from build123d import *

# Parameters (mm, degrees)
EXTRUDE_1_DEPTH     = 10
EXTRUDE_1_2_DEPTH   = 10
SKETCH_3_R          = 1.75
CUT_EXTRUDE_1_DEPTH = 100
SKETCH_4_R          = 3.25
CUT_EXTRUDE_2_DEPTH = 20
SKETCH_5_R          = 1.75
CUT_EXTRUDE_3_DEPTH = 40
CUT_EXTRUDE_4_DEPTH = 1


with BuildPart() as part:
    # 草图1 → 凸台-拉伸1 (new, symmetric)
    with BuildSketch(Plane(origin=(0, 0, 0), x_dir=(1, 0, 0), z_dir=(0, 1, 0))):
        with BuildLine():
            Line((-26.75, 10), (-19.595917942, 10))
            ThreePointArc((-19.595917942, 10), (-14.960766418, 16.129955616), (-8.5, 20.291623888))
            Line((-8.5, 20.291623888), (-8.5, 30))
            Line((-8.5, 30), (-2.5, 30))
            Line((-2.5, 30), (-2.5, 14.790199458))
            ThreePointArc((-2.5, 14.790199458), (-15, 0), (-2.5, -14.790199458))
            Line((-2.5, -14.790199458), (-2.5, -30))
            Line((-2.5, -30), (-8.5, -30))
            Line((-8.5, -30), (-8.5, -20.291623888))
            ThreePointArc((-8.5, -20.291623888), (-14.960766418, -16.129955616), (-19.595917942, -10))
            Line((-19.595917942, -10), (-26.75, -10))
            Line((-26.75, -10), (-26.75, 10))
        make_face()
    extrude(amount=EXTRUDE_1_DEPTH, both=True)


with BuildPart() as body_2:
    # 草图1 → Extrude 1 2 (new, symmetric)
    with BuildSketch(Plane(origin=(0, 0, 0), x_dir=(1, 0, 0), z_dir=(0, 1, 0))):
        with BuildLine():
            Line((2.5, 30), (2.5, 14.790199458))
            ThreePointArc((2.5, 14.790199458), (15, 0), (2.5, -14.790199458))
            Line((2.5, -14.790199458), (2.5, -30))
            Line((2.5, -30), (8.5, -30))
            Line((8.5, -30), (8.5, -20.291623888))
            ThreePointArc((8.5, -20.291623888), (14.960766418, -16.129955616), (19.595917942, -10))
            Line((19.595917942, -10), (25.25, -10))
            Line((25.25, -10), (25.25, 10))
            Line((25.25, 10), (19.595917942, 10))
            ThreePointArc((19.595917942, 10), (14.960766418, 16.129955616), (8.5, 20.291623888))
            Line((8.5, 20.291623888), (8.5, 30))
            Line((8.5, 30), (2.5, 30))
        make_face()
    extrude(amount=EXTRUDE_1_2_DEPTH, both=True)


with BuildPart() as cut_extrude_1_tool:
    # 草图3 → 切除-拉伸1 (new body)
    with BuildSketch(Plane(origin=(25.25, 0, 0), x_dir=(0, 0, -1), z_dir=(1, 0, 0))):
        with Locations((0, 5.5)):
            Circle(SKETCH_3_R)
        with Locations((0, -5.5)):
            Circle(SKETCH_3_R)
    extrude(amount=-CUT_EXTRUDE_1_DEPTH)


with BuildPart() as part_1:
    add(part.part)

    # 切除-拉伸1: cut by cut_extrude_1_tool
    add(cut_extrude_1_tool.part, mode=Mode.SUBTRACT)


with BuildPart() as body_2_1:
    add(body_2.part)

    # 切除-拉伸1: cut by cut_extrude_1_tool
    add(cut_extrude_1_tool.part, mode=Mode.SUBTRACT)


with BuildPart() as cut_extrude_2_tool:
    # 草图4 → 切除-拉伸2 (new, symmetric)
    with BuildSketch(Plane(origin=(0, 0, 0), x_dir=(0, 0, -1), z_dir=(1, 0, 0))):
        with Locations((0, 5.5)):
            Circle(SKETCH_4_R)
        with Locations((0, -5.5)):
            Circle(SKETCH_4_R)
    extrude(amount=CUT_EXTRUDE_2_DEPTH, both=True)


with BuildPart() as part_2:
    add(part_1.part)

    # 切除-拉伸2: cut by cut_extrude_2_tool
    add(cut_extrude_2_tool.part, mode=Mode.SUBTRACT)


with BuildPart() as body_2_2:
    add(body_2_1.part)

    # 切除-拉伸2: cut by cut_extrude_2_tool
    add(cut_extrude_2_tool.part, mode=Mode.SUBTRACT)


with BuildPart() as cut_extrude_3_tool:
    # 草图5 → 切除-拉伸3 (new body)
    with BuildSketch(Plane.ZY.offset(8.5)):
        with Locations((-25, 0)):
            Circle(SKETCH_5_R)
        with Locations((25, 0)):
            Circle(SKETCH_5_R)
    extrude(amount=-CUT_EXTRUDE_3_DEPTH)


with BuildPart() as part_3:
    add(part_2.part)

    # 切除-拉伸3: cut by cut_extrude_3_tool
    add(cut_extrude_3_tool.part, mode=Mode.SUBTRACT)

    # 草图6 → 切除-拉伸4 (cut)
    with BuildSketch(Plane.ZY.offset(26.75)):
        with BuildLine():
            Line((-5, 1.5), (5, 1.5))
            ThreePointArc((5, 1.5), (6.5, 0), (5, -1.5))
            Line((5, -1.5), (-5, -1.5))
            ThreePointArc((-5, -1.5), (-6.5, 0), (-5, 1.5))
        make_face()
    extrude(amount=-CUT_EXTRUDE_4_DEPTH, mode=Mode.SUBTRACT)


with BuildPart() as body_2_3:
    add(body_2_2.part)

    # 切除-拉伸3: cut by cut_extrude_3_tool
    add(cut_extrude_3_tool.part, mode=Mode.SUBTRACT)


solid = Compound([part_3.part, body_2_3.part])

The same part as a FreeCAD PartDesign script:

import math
import FreeCAD as App
import Part
import Sketcher
Q = App.Units.Quantity

doc = App.newDocument("Part")
body = doc.addObject("PartDesign::Body", "Body")

# Sketch on XZ plane
sketch1 = body.newObject("Sketcher::SketchObject", "Sketch")
sketch1.AttachmentSupport = (doc.getObject("XZ_Plane"), [""])
sketch1.MapMode = "FlatFace"
sketch1.addGeometry(Part.LineSegment(App.Vector(-20, -10, 0), App.Vector(-27, -10, 0)), False)
sketch1.addGeometry(Part.LineSegment(App.Vector(-27, -10, 0), App.Vector(-27, 10, 0)), False)
sketch1.addGeometry(Part.LineSegment(App.Vector(-27, 10, 0), App.Vector(-20, 10, 0)), False)
sketch1.addGeometry(Part.ArcOfCircle(Part.Circle(App.Vector(0, 0, 0), App.Vector(0, 0, 1), 22), math.radians(113), math.radians(153)), False)
sketch1.addGeometry(Part.LineSegment(App.Vector(-8, 20, 0), App.Vector(-8, 30, 0)), False)
sketch1.addGeometry(Part.LineSegment(App.Vector(-8, 30, 0), App.Vector(-2, 30, 0)), False)
sketch1.addGeometry(Part.LineSegment(App.Vector(-2, 30, 0), App.Vector(-2, 15, 0)), False)
sketch1.addGeometry(Part.ArcOfCircle(Part.Circle(App.Vector(0, 0, 0), App.Vector(0, 0, 1), 15), math.radians(100), math.radians(260)), False)
sketch1.addGeometry(Part.LineSegment(App.Vector(-2, -15, 0), App.Vector(-2, -30, 0)), False)
sketch1.addGeometry(Part.LineSegment(App.Vector(-2, -30, 0), App.Vector(-8, -30, 0)), False)
sketch1.addGeometry(Part.LineSegment(App.Vector(-8, -30, 0), App.Vector(-8, -20, 0)), False)
sketch1.addGeometry(Part.ArcOfCircle(Part.Circle(App.Vector(0, 0, 0), App.Vector(0, 0, 1), 22), math.radians(-153), math.radians(-113)), False)
sketch1.addConstraint(Sketcher.Constraint("Coincident", 0, 2, 1, 1))
sketch1.addConstraint(Sketcher.Constraint("Coincident", 1, 2, 2, 1))
sketch1.addConstraint(Sketcher.Constraint("Coincident", 2, 2, 3, 2))
sketch1.addConstraint(Sketcher.Constraint("Coincident", 3, 1, 4, 1))
sketch1.addConstraint(Sketcher.Constraint("Coincident", 4, 2, 5, 1))
sketch1.addConstraint(Sketcher.Constraint("Coincident", 5, 2, 6, 1))
sketch1.addConstraint(Sketcher.Constraint("Coincident", 6, 2, 7, 1))
sketch1.addConstraint(Sketcher.Constraint("Coincident", 7, 2, 8, 1))
sketch1.addConstraint(Sketcher.Constraint("Coincident", 8, 2, 9, 1))
sketch1.addConstraint(Sketcher.Constraint("Coincident", 9, 2, 10, 1))
sketch1.addConstraint(Sketcher.Constraint("Coincident", 10, 2, 11, 2))
sketch1.addConstraint(Sketcher.Constraint("Coincident", 11, 1, 0, 1))
sketch1.addConstraint(Sketcher.Constraint("Horizontal", 0))
sketch1.addConstraint(Sketcher.Constraint("Vertical", 1))
sketch1.addConstraint(Sketcher.Constraint("Horizontal", 2))
sketch1.addConstraint(Sketcher.Constraint("Vertical", 4))
sketch1.addConstraint(Sketcher.Constraint("Horizontal", 5))
sketch1.addConstraint(Sketcher.Constraint("Vertical", 6))
sketch1.addConstraint(Sketcher.Constraint("Vertical", 8))
sketch1.addConstraint(Sketcher.Constraint("Horizontal", 9))
sketch1.addConstraint(Sketcher.Constraint("Vertical", 10))
sketch1.addConstraint(Sketcher.Constraint("Coincident", 3, 3, -1, 1))
sketch1.addConstraint(Sketcher.Constraint("Coincident", 7, 3, -1, 1))
sketch1.addConstraint(Sketcher.Constraint("Coincident", 11, 3, -1, 1))
sketch1.addConstraint(Sketcher.Constraint("Equal", 3, 11))
sketch1.addConstraint(Sketcher.Constraint("Symmetric", 5, 2, 8, 2, -1))
sketch1.addConstraint(Sketcher.Constraint("Vertical", 4, 2, 9, 2))
sketch1.addConstraint(Sketcher.Constraint("Vertical", 2, 2, 11, 1))
sketch1.addConstraint(Sketcher.Constraint("Radius", 3, Q("22 mm")))
sketch1.addConstraint(Sketcher.Constraint("Radius", 7, Q("15 mm")))
sketch1.addConstraint(Sketcher.Constraint("DistanceX", 5, 1, 5, 2, Q("6 mm")))
sketch1.addConstraint(Sketcher.Constraint("DistanceY", 1, 1, 1, 2, Q("20 mm")))
sketch1.addConstraint(Sketcher.Constraint("DistanceY", -1, 1, 4, 2, Q("30 mm")))
sketch1.addConstraint(Sketcher.Constraint("DistanceX", 3, 1, -1, 1, Q("8.5 mm")))
sketch1.addConstraint(Sketcher.Constraint("DistanceX", 0, 2, -1, 1, Q("26.75 mm")))
pad1 = body.newObject("PartDesign::Pad", "Pad")
pad1.Profile = sketch1
pad1.Length = 20
pad1.Midplane = True
body2 = doc.addObject("PartDesign::Body", "Body001")

# Sketch on XZ plane
sketch2 = body2.newObject("Sketcher::SketchObject", "Sketch001")
sketch2.AttachmentSupport = (doc.getObject("XZ_Plane001"), [""])
sketch2.MapMode = "FlatFace"
sketch2.addGeometry(Part.LineSegment(App.Vector(2, -30, 0), App.Vector(2, -15, 0)), False)
sketch2.addGeometry(Part.ArcOfCircle(Part.Circle(App.Vector(0, 0, 0), App.Vector(0, 0, 1), 15), math.radians(-80), math.radians(80)), False)
sketch2.addGeometry(Part.LineSegment(App.Vector(2, 15, 0), App.Vector(2, 30, 0)), False)
sketch2.addGeometry(Part.LineSegment(App.Vector(2, 30, 0), App.Vector(8, 30, 0)), False)
sketch2.addGeometry(Part.LineSegment(App.Vector(8, 30, 0), App.Vector(8, 20, 0)), False)
sketch2.addGeometry(Part.ArcOfCircle(Part.Circle(App.Vector(0, 0, 0), App.Vector(0, 0, 1), 22), math.radians(27), math.radians(67)), False)
sketch2.addGeometry(Part.LineSegment(App.Vector(20, 10, 0), App.Vector(25, 10, 0)), False)
sketch2.addGeometry(Part.LineSegment(App.Vector(25, 10, 0), App.Vector(25, -10, 0)), False)
sketch2.addGeometry(Part.LineSegment(App.Vector(25, -10, 0), App.Vector(20, -10, 0)), False)
sketch2.addGeometry(Part.ArcOfCircle(Part.Circle(App.Vector(0, 0, 0), App.Vector(0, 0, 1), 22), math.radians(-67), math.radians(-27)), False)
sketch2.addGeometry(Part.LineSegment(App.Vector(8, -20, 0), App.Vector(8, -30, 0)), False)
sketch2.addGeometry(Part.LineSegment(App.Vector(8, -30, 0), App.Vector(2, -30, 0)), False)
sketch2.addConstraint(Sketcher.Constraint("Coincident", 0, 2, 1, 1))
sketch2.addConstraint(Sketcher.Constraint("Coincident", 1, 2, 2, 1))
sketch2.addConstraint(Sketcher.Constraint("Coincident", 2, 2, 3, 1))
sketch2.addConstraint(Sketcher.Constraint("Coincident", 3, 2, 4, 1))
sketch2.addConstraint(Sketcher.Constraint("Coincident", 4, 2, 5, 2))
sketch2.addConstraint(Sketcher.Constraint("Coincident", 5, 1, 6, 1))
sketch2.addConstraint(Sketcher.Constraint("Coincident", 6, 2, 7, 1))
sketch2.addConstraint(Sketcher.Constraint("Coincident", 7, 2, 8, 1))
sketch2.addConstraint(Sketcher.Constraint("Coincident", 8, 2, 9, 2))
sketch2.addConstraint(Sketcher.Constraint("Coincident", 9, 1, 10, 1))
sketch2.addConstraint(Sketcher.Constraint("Coincident", 10, 2, 11, 1))
sketch2.addConstraint(Sketcher.Constraint("Coincident", 11, 2, 0, 1))
sketch2.addConstraint(Sketcher.Constraint("Vertical", 0))
sketch2.addConstraint(Sketcher.Constraint("Vertical", 2))
sketch2.addConstraint(Sketcher.Constraint("Horizontal", 3))
sketch2.addConstraint(Sketcher.Constraint("Vertical", 4))
sketch2.addConstraint(Sketcher.Constraint("Horizontal", 6))
sketch2.addConstraint(Sketcher.Constraint("Vertical", 7))
sketch2.addConstraint(Sketcher.Constraint("Horizontal", 8))
sketch2.addConstraint(Sketcher.Constraint("Vertical", 10))
sketch2.addConstraint(Sketcher.Constraint("Horizontal", 11))
sketch2.addConstraint(Sketcher.Constraint("Coincident", 1, 3, -1, 1))
sketch2.addConstraint(Sketcher.Constraint("Coincident", 5, 3, -1, 1))
sketch2.addConstraint(Sketcher.Constraint("Coincident", 9, 3, -1, 1))
sketch2.addConstraint(Sketcher.Constraint("Equal", 5, 9))
sketch2.addConstraint(Sketcher.Constraint("Symmetric", 3, 2, 10, 2, -1))
sketch2.addConstraint(Sketcher.Constraint("Vertical", 0, 2, 1, 2))
sketch2.addConstraint(Sketcher.Constraint("Vertical", 5, 1, 8, 2))
sketch2.addConstraint(Sketcher.Constraint("Radius", 1, Q("15 mm")))
sketch2.addConstraint(Sketcher.Constraint("Radius", 5, Q("22 mm")))
sketch2.addConstraint(Sketcher.Constraint("DistanceX", 3, 1, 3, 2, Q("6 mm")))
sketch2.addConstraint(Sketcher.Constraint("DistanceY", 7, 2, 7, 1, Q("20 mm")))
sketch2.addConstraint(Sketcher.Constraint("DistanceY", -1, 1, 2, 2, Q("30 mm")))
sketch2.addConstraint(Sketcher.Constraint("DistanceX", -1, 1, 0, 2, Q("2.5 mm")))
sketch2.addConstraint(Sketcher.Constraint("DistanceX", -1, 1, 6, 2, Q("25.25 mm")))
pad2 = body2.newObject("PartDesign::Pad", "Pad001")
pad2.Profile = sketch2
pad2.Length = 20
pad2.Midplane = True
body3 = doc.addObject("PartDesign::Body", "Body002")
body3.AllowCompound = True

# Sketch on YZ plane
sketch3 = body3.newObject("Sketcher::SketchObject", "Sketch002")
sketch3.AttachmentSupport = (doc.getObject("YZ_Plane002"), [""])
sketch3.MapMode = "FlatFace"
sketch3.AttachmentOffset = App.Placement(App.Vector(0, 0, 25.25), App.Rotation())
sketch3.addGeometry(Part.Circle(App.Vector(5.5, 0, 0), App.Vector(0, 0, 1), 1.8), False)
sketch3.addGeometry(Part.Circle(App.Vector(-5.5, 0, 0), App.Vector(0, 0, 1), 1.8), False)
sketch3.addConstraint(Sketcher.Constraint("Equal", 0, 1))
sketch3.addConstraint(Sketcher.Constraint("Symmetric", 0, 3, 1, 3, -1, 1))
sketch3.addConstraint(Sketcher.Constraint("PointOnObject", 0, 3, -1))
sketch3.addConstraint(Sketcher.Constraint("Diameter", 0, Q("3.5 mm")))
sketch3.addConstraint(Sketcher.Constraint("DistanceX", 1, 3, 0, 3, Q("11 mm")))
pad3 = body3.newObject("PartDesign::Pad", "Pad002")
pad3.Profile = sketch3
pad3.Length = 100
pad3.Reversed = True
doc.recompute()

body4 = doc.addObject("PartDesign::Body", "Body003")
body4.BaseFeature = body3
boolean = body.newObject("PartDesign::Boolean", "Boolean")
boolean.Type = "Cut"
boolean.addObjects([body4])
doc.recompute()

boolean2 = body2.newObject("PartDesign::Boolean", "Boolean001")
boolean2.Type = "Cut"
boolean2.addObjects([body3])
body5 = doc.addObject("PartDesign::Body", "Body004")
body5.AllowCompound = True

# Sketch on YZ plane
sketch4 = body5.newObject("Sketcher::SketchObject", "Sketch003")
sketch4.AttachmentSupport = (doc.getObject("YZ_Plane004"), [""])
sketch4.MapMode = "FlatFace"
sketch4.addGeometry(Part.Circle(App.Vector(5.5, 0, 0), App.Vector(0, 0, 1), 3.2), False)
sketch4.addGeometry(Part.Circle(App.Vector(-5.5, 0, 0), App.Vector(0, 0, 1), 3.2), False)
sketch4.addConstraint(Sketcher.Constraint("Equal", 0, 1))
sketch4.addConstraint(Sketcher.Constraint("Symmetric", 0, 3, 1, 3, -1, 1))
sketch4.addConstraint(Sketcher.Constraint("PointOnObject", 0, 3, -1))
sketch4.addConstraint(Sketcher.Constraint("Diameter", 0, Q("6.5 mm")))
sketch4.addConstraint(Sketcher.Constraint("DistanceX", 1, 3, 0, 3, Q("11 mm")))
pad4 = body5.newObject("PartDesign::Pad", "Pad003")
pad4.Profile = sketch4
pad4.Length = 40
pad4.Midplane = True
doc.recompute()

body6 = doc.addObject("PartDesign::Body", "Body005")
body6.BaseFeature = body5
boolean3 = body.newObject("PartDesign::Boolean", "Boolean002")
boolean3.Type = "Cut"
boolean3.addObjects([body6])
doc.recompute()

boolean4 = body2.newObject("PartDesign::Boolean", "Boolean003")
boolean4.Type = "Cut"
boolean4.addObjects([body5])
body7 = doc.addObject("PartDesign::Body", "Body006")
body7.AllowCompound = True

# Sketch on YZ plane
sketch5 = body7.newObject("Sketcher::SketchObject", "Sketch004")
sketch5.AttachmentSupport = (doc.getObject("YZ_Plane006"), [""])
sketch5.MapMode = "FlatFace"
sketch5.AttachmentOffset = App.Placement(App.Vector(0, 0, -8.5), App.Rotation())
sketch5.addGeometry(Part.Circle(App.Vector(0, -25, 0), App.Vector(0, 0, 1), 1.8), False)
sketch5.addGeometry(Part.Circle(App.Vector(0, 25, 0), App.Vector(0, 0, 1), 1.8), False)
sketch5.addConstraint(Sketcher.Constraint("Equal", 0, 1))
sketch5.addConstraint(Sketcher.Constraint("Symmetric", 0, 3, 1, 3, -1, 1))
sketch5.addConstraint(Sketcher.Constraint("PointOnObject", 0, 3, -2))
sketch5.addConstraint(Sketcher.Constraint("Diameter", 0, Q("3.5 mm")))
sketch5.addConstraint(Sketcher.Constraint("DistanceY", 0, 3, -1, 1, Q("25 mm")))
pad5 = body7.newObject("PartDesign::Pad", "Pad004")
pad5.Profile = sketch5
pad5.Length = 40
doc.recompute()

body8 = doc.addObject("PartDesign::Body", "Body007")
body8.BaseFeature = body7
boolean5 = body.newObject("PartDesign::Boolean", "Boolean004")
boolean5.Type = "Cut"
boolean5.addObjects([body8])
doc.recompute()

# Sketch on YZ plane
sketch6 = body.newObject("Sketcher::SketchObject", "Sketch005")
sketch6.AttachmentSupport = (doc.getObject("YZ_Plane"), [""])
sketch6.MapMode = "FlatFace"
sketch6.AttachmentOffset = App.Placement(App.Vector(0, 0, -26.75), App.Rotation())
sketch6.addGeometry(Part.LineSegment(App.Vector(1.5, 5, 0), App.Vector(1.5, -5, 0)), False)
sketch6.addGeometry(Part.ArcOfCircle(Part.Circle(App.Vector(0, -5, 0), App.Vector(0, 0, 1), 1.5), math.radians(180), math.radians(360)), False)
sketch6.addGeometry(Part.LineSegment(App.Vector(-1.5, -5, 0), App.Vector(-1.5, 5, 0)), False)
sketch6.addGeometry(Part.ArcOfCircle(Part.Circle(App.Vector(0, 5, 0), App.Vector(0, 0, 1), 1.5), math.radians(0), math.radians(180)), False)
sketch6.addConstraint(Sketcher.Constraint("Tangent", 0, 2, 1, 2))
sketch6.addConstraint(Sketcher.Constraint("Tangent", 1, 1, 2, 1))
sketch6.addConstraint(Sketcher.Constraint("Tangent", 2, 2, 3, 2))
sketch6.addConstraint(Sketcher.Constraint("Tangent", 3, 1, 0, 1))
sketch6.addConstraint(Sketcher.Constraint("Vertical", 0))
sketch6.addConstraint(Sketcher.Constraint("Vertical", 2))
sketch6.addConstraint(Sketcher.Constraint("Symmetric", 1, 3, 3, 3, -1, 1))
sketch6.addConstraint(Sketcher.Constraint("Radius", 1, Q("1.5 mm")))
sketch6.addConstraint(Sketcher.Constraint("DistanceY", 0, 2, 0, 1, Q("10 mm")))
pocket1 = body.newObject("PartDesign::Pocket", "Pocket")
pocket1.Profile = sketch6
pocket1.Length = 1
pocket1.Reversed = True
doc.recompute()

boolean6 = body2.newObject("PartDesign::Boolean", "Boolean005")
boolean6.Type = "Cut"
boolean6.addObjects([body7])

doc.recompute()
